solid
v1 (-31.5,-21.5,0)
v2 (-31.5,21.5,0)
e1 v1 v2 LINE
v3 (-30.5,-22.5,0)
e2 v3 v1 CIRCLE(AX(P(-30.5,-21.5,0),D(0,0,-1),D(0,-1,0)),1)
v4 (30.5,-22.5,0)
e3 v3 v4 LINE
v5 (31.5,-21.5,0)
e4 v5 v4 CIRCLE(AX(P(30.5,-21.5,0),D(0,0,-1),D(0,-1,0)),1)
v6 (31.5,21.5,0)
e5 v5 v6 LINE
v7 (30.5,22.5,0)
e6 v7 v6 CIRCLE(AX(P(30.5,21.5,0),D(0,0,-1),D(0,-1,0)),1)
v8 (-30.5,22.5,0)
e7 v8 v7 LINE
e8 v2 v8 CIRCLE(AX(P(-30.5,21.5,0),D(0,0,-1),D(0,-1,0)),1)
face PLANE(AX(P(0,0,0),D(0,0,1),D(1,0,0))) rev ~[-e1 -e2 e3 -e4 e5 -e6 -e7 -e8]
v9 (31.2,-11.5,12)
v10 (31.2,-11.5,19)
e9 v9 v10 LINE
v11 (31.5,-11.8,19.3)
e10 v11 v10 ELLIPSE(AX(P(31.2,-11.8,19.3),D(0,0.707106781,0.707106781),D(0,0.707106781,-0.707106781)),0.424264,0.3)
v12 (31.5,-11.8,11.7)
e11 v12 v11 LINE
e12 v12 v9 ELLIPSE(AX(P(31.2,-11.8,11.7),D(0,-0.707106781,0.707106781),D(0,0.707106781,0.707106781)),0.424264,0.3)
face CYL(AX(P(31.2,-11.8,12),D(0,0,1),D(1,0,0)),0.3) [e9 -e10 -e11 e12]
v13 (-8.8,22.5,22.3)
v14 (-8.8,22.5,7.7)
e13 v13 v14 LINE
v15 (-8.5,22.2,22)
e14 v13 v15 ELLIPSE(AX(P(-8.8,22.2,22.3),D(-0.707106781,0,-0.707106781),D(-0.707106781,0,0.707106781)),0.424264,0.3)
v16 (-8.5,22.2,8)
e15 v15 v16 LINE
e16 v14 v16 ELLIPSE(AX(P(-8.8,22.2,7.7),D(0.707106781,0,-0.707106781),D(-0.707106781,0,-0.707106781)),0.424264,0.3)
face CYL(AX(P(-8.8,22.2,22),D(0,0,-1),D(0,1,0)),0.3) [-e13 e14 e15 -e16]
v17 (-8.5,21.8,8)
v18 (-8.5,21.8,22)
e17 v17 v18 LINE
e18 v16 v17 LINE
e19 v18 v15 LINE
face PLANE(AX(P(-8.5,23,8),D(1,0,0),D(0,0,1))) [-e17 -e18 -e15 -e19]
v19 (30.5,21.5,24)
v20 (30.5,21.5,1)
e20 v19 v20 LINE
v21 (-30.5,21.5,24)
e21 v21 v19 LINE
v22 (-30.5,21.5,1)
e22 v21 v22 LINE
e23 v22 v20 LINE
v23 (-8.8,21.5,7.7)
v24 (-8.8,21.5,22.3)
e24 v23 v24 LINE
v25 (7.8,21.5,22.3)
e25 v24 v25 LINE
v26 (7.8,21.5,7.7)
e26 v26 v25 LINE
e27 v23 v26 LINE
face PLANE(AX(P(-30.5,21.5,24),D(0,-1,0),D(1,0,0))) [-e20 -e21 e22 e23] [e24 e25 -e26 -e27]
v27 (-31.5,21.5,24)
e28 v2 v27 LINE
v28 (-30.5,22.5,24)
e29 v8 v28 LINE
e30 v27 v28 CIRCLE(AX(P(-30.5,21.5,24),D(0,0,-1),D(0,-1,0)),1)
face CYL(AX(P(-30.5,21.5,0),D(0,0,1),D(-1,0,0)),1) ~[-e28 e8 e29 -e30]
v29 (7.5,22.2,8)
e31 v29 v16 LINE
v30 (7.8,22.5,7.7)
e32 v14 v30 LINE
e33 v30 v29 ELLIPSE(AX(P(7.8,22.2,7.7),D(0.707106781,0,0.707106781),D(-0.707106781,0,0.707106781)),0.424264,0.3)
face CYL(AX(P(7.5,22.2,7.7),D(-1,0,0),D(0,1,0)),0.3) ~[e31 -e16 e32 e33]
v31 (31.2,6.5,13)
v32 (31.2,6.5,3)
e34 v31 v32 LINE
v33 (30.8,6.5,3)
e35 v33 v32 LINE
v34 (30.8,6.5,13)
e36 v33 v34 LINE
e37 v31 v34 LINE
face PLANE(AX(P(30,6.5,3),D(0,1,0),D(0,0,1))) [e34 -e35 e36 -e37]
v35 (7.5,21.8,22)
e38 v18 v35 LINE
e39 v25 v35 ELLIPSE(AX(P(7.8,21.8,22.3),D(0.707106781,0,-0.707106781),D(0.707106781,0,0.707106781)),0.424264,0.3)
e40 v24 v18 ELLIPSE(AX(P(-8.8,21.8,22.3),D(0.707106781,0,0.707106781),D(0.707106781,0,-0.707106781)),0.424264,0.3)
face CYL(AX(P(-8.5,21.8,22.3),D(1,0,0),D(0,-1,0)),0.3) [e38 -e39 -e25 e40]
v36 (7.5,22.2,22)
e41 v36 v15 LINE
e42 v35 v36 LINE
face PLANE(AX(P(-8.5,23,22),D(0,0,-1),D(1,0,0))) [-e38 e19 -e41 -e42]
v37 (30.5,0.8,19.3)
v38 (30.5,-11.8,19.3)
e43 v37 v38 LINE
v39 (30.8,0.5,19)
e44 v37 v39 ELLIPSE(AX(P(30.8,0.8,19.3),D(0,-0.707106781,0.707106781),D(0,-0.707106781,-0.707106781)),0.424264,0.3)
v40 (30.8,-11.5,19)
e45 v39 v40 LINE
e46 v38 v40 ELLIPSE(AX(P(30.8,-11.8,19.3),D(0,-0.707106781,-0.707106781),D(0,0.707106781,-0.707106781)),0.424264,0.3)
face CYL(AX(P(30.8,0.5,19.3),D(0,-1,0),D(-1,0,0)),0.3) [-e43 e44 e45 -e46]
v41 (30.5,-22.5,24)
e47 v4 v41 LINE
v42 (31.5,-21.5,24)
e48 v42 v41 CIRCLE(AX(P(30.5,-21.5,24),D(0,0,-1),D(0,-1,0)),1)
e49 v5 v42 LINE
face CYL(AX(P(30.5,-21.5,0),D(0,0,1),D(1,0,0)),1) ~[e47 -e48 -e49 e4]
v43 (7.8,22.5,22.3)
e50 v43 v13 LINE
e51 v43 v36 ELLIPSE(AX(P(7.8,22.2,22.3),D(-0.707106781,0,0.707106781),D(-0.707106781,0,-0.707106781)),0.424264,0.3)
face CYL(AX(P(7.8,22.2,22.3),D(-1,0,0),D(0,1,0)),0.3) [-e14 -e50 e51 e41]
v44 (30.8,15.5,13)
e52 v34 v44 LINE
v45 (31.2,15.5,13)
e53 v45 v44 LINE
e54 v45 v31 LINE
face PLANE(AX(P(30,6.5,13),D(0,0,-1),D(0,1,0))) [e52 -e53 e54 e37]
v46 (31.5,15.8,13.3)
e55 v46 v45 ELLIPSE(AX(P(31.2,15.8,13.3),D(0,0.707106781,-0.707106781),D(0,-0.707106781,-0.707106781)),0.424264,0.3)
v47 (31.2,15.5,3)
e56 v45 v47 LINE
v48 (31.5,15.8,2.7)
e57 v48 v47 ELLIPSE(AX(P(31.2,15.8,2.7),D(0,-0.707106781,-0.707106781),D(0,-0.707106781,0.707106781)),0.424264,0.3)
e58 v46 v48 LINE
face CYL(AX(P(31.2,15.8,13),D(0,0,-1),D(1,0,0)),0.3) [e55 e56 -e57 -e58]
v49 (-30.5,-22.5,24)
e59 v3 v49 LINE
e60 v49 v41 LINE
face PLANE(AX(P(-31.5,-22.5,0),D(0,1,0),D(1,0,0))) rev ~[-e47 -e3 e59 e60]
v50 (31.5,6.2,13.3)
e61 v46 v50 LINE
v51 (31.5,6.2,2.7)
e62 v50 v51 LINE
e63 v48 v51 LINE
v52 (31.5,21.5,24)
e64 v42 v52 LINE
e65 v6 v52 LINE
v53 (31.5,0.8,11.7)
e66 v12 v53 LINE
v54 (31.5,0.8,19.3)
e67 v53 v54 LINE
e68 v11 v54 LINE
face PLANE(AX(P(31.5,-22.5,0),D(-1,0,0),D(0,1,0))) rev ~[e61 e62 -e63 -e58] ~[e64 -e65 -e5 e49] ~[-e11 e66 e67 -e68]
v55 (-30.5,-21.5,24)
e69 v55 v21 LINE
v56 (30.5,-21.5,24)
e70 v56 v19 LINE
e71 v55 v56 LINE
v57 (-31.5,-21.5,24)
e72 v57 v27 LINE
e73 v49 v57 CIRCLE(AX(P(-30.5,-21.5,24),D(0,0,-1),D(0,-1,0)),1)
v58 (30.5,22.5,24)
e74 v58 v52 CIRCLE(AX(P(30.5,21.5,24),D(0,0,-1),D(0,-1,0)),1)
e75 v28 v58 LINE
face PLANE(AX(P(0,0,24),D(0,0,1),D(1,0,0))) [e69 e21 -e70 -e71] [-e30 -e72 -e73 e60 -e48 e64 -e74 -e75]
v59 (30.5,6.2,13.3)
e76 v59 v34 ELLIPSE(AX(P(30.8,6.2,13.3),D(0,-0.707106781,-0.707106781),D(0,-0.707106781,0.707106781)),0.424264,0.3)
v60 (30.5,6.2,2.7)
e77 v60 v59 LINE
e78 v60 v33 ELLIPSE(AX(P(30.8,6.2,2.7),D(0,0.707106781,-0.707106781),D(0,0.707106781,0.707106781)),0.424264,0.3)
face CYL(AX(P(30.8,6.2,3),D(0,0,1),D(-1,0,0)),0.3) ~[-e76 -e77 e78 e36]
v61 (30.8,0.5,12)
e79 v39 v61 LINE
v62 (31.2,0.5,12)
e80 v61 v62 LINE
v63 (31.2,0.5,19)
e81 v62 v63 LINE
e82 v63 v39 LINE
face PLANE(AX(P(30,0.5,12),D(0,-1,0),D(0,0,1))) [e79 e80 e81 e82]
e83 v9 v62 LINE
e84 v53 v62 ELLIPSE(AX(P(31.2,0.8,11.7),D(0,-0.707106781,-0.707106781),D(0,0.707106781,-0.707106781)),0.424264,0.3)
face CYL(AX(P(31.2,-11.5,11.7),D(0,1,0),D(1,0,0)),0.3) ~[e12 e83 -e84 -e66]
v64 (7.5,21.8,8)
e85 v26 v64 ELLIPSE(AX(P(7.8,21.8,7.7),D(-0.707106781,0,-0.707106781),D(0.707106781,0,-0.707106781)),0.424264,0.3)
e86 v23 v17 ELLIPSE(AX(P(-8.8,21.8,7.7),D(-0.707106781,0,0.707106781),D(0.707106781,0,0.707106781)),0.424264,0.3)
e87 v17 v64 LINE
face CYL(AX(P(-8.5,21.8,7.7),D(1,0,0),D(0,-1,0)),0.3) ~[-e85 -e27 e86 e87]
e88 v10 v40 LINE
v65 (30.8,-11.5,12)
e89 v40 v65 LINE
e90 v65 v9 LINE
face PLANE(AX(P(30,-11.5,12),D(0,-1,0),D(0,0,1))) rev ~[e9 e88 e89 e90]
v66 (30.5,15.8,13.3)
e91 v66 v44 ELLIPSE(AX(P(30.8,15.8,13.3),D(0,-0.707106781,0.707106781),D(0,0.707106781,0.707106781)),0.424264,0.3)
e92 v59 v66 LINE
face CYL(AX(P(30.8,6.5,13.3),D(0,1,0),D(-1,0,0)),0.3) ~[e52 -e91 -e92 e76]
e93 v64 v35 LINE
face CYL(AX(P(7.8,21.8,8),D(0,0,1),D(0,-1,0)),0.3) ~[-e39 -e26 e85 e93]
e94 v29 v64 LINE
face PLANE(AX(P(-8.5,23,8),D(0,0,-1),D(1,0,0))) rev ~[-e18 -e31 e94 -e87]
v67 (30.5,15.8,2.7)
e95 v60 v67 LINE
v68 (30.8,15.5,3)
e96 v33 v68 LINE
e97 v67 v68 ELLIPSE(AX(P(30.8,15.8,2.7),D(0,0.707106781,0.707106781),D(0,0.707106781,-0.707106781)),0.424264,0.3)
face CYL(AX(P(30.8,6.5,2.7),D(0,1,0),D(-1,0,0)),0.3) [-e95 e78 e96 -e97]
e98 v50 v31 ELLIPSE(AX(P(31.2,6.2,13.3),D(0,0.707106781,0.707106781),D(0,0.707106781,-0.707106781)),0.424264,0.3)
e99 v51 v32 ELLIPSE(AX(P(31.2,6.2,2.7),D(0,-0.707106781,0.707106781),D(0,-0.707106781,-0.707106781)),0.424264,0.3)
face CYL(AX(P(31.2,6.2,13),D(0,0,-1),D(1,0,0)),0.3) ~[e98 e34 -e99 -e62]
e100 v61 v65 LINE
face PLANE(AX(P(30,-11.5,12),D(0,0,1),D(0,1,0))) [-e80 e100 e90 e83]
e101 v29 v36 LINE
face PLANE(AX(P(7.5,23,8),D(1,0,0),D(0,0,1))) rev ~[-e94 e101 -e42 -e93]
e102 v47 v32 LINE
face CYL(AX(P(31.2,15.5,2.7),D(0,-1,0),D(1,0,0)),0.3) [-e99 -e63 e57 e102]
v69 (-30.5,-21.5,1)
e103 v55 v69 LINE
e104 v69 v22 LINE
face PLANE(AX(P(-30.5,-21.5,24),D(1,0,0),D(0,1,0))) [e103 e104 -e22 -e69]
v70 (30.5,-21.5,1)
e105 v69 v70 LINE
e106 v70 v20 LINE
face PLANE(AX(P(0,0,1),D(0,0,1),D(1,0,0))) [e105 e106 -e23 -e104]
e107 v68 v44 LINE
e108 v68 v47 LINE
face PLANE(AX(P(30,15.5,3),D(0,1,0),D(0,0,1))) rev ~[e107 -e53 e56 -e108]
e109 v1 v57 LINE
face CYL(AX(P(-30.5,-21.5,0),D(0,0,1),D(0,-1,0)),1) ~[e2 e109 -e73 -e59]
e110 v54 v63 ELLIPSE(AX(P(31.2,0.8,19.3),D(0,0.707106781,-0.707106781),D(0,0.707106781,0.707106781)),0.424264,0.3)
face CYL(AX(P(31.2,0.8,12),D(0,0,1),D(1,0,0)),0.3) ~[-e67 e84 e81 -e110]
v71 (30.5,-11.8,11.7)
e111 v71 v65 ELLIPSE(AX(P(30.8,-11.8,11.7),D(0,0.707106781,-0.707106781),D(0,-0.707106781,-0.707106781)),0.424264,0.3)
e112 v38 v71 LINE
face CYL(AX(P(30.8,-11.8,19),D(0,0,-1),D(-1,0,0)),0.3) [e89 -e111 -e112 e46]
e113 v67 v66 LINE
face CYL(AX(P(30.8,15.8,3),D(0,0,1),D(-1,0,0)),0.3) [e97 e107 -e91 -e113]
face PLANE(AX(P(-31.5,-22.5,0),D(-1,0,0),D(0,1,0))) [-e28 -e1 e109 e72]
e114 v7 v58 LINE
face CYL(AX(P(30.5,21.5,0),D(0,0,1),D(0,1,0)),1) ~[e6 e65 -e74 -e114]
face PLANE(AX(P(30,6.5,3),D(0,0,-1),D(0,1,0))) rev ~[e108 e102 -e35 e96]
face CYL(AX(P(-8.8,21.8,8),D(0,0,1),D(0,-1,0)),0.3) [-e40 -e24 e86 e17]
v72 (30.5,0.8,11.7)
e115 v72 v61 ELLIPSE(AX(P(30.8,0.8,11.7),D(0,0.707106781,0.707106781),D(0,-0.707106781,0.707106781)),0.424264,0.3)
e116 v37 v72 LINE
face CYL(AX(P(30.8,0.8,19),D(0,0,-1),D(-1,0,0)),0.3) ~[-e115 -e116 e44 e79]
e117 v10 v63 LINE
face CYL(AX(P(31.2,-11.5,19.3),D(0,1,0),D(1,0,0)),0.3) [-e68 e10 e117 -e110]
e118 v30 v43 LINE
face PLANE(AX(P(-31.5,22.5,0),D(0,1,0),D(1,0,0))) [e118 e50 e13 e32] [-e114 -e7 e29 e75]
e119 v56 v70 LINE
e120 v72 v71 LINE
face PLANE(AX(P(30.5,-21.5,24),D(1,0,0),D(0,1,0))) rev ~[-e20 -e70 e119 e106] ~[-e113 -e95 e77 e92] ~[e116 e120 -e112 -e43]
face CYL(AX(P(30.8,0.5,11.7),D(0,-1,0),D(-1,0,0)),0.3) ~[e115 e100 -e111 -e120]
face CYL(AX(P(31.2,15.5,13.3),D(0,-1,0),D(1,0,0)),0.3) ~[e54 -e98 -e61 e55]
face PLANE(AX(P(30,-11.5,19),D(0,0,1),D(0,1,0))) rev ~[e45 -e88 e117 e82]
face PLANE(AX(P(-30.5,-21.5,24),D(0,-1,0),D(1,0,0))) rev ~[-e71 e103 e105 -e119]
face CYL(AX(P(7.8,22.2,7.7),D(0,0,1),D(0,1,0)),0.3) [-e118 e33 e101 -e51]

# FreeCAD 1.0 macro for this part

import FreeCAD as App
import Part
import Sketcher
from FreeCAD import Vector


def edges_at(feature, points):
    """Names of the edges that pass closest to the given points."""
    edges = feature.Shape.Edges
    near = lambda p: min(range(len(edges)), key=lambda i: edges[i].distToShape(Part.Vertex(*p))[0])
    return sorted({f"Edge{near(p) + 1}" for p in points})

doc = App.newDocument("Part")
params = doc.addObject("Spreadsheet::Sheet", "Params")
for row, (alias, value) in enumerate([
    ("sketch1_width", "63 mm"),
    ("sketch1_height", "45 mm"),
    ("pad1_length", "24 mm"),
    ("sketch2_width", "61 mm"),
    ("sketch2_height", "43 mm"),
    ("pocket1_length", "23 mm"),
    ("sketch3_width", "12 mm"),
    ("sketch3_width2", "9 mm"),
    ("sketch3_height", "7 mm"),
    ("sketch3_height2", "10 mm"),
    ("pocket2_length", "5 mm"),
    ("sketch4_width", "16 mm"),
    ("sketch4_height", "14 mm"),
    ("pocket3_length", "5 mm"),
    ("fillet_radius", "1 mm"),
    ("fillet2_radius", "1 mm"),
    ("fillet3_radius", "1 mm"),
    ("fillet4_radius", "1 mm"),
    ("fillet5_radius", "0.3 mm"),
    ("fillet6_radius", "0.3 mm"),
    ("fillet7_radius", "0.3 mm"),
    ("fillet8_radius", "0.3 mm"),
    ("fillet9_radius", "0.3 mm"),
    ("fillet10_radius", "0.3 mm"),
], start=1):
    params.set(f"A{row}", alias)
    params.set(f"B{row}", "=" + value)
    params.setAlias(f"B{row}", alias)

body = doc.addObject("PartDesign::Body", "Body")

# Sketch on XY plane
sketch1 = body.newObject("Sketcher::SketchObject", "Sketch")
sketch1.AttachmentSupport = (doc.getObject("XY_Plane"), [""])
sketch1.MapMode = "FlatFace"
sketch1.addGeometry(Part.LineSegment(Vector(-32, 22, 0), Vector(-32, -22, 0)), False)
sketch1.addGeometry(Part.LineSegment(Vector(-32, -22, 0), Vector(32, -22, 0)), False)
sketch1.addGeometry(Part.LineSegment(Vector(32, -22, 0), Vector(32, 22, 0)), False)
sketch1.addGeometry(Part.LineSegment(Vector(32, 22, 0), Vector(-32, 22, 0)), False)
sketch1.addConstraint(Sketcher.Constraint("Coincident", 0, 2, 1, 1))
sketch1.addConstraint(Sketcher.Constraint("Coincident", 1, 2, 2, 1))
sketch1.addConstraint(Sketcher.Constraint("Coincident", 2, 2, 3, 1))
sketch1.addConstraint(Sketcher.Constraint("Coincident", 3, 2, 0, 1))
sketch1.addConstraint(Sketcher.Constraint("Vertical", 0))
sketch1.addConstraint(Sketcher.Constraint("Horizontal", 1))
sketch1.addConstraint(Sketcher.Constraint("Vertical", 2))
sketch1.addConstraint(Sketcher.Constraint("Horizontal", 3))
sketch1.addConstraint(Sketcher.Constraint("Symmetric", 0, 2, 2, 2, -1, 1))
sketch1.addConstraint(Sketcher.Constraint("DistanceX", 1, 1, 1, 2, 63.0))
sketch1.addConstraint(Sketcher.Constraint("DistanceY", 0, 2, 0, 1, 45.0))
sketch1.setExpression("Constraints[9]", "Params.sketch1_width")
sketch1.setExpression("Constraints[10]", "Params.sketch1_height")
pad1 = body.newObject("PartDesign::Pad", "Pad")
pad1.Profile = sketch1
pad1.setExpression("Length", "Params.pad1_length")

# Sketch on XY plane
sketch2 = body.newObject("Sketcher::SketchObject", "Sketch001")
sketch2.AttachmentSupport = (doc.getObject("XY_Plane"), [""])
sketch2.MapMode = "FlatFace"
sketch2.AttachmentOffset = App.Placement(Vector(0, 0, 24), App.Rotation())
sketch2.addGeometry(Part.LineSegment(Vector(-30, 22, 0), Vector(-30, -22, 0)), False)
sketch2.addGeometry(Part.LineSegment(Vector(-30, -22, 0), Vector(30, -22, 0)), False)
sketch2.addGeometry(Part.LineSegment(Vector(30, -22, 0), Vector(30, 22, 0)), False)
sketch2.addGeometry(Part.LineSegment(Vector(30, 22, 0), Vector(-30, 22, 0)), False)
sketch2.addConstraint(Sketcher.Constraint("Coincident", 0, 2, 1, 1))
sketch2.addConstraint(Sketcher.Constraint("Coincident", 1, 2, 2, 1))
sketch2.addConstraint(Sketcher.Constraint("Coincident", 2, 2, 3, 1))
sketch2.addConstraint(Sketcher.Constraint("Coincident", 3, 2, 0, 1))
sketch2.addConstraint(Sketcher.Constraint("Vertical", 0))
sketch2.addConstraint(Sketcher.Constraint("Horizontal", 1))
sketch2.addConstraint(Sketcher.Constraint("Vertical", 2))
sketch2.addConstraint(Sketcher.Constraint("Horizontal", 3))
sketch2.addConstraint(Sketcher.Constraint("Symmetric", 0, 2, 2, 2, -1, 1))
sketch2.addConstraint(Sketcher.Constraint("DistanceX", 1, 1, 1, 2, 61.0))
sketch2.addConstraint(Sketcher.Constraint("DistanceY", 0, 2, 0, 1, 43.0))
sketch2.setExpression("Constraints[9]", "Params.sketch2_width")
sketch2.setExpression("Constraints[10]", "Params.sketch2_height")
pocket1 = body.newObject("PartDesign::Pocket", "Pocket")
pocket1.Profile = sketch2
pocket1.setExpression("Length", "Params.pocket1_length")

# Sketch on YZ plane
sketch3 = body.newObject("Sketcher::SketchObject", "Sketch002")
sketch3.AttachmentSupport = (doc.getObject("YZ_Plane"), [""])
sketch3.MapMode = "FlatFace"
sketch3.AttachmentOffset = App.Placement(Vector(0, 0, 30), App.Rotation())
sketch3.addGeometry(Part.LineSegment(Vector(-12, 19, 0), Vector(-12, 12, 0)), False)
sketch3.addGeometry(Part.LineSegment(Vector(-12, 12, 0), Vector(0, 12, 0)), False)
sketch3.addGeometry(Part.LineSegment(Vector(0, 12, 0), Vector(0, 19, 0)), False)
sketch3.addGeometry(Part.LineSegment(Vector(0, 19, 0), Vector(-12, 19, 0)), False)
sketch3.addGeometry(Part.LineSegment(Vector(6, 13, 0), Vector(6, 3, 0)), False)
sketch3.addGeometry(Part.LineSegment(Vector(6, 3, 0), Vector(16, 3, 0)), False)
sketch3.addGeometry(Part.LineSegment(Vector(16, 3, 0), Vector(16, 13, 0)), False)
sketch3.addGeometry(Part.LineSegment(Vector(16, 13, 0), Vector(6, 13, 0)), False)
sketch3.addConstraint(Sketcher.Constraint("Coincident", 0, 2, 1, 1))
sketch3.addConstraint(Sketcher.Constraint("Coincident", 1, 2, 2, 1))
sketch3.addConstraint(Sketcher.Constraint("Coincident", 2, 2, 3, 1))
sketch3.addConstraint(Sketcher.Constraint("Coincident", 3, 2, 0, 1))
sketch3.addConstraint(Sketcher.Constraint("Coincident", 4, 2, 5, 1))
sketch3.addConstraint(Sketcher.Constraint("Coincident", 5, 2, 6, 1))
sketch3.addConstraint(Sketcher.Constraint("Coincident", 6, 2, 7, 1))
sketch3.addConstraint(Sketcher.Constraint("Coincident", 7, 2, 4, 1))
sketch3.addConstraint(Sketcher.Constraint("Vertical", 0))
sketch3.addConstraint(Sketcher.Constraint("Horizontal", 1))
sketch3.addConstraint(Sketcher.Constraint("Vertical", 2))
sketch3.addConstraint(Sketcher.Constraint("Horizontal", 3))
sketch3.addConstraint(Sketcher.Constraint("Vertical", 4))
sketch3.addConstraint(Sketcher.Constraint("Horizontal", 5))
sketch3.addConstraint(Sketcher.Constraint("Vertical", 6))
sketch3.addConstraint(Sketcher.Constraint("Horizontal", 7))
sketch3.addConstraint(Sketcher.Constraint("DistanceX", 1, 1, 1, 2, 12.0))
sketch3.addConstraint(Sketcher.Constraint("DistanceX", 5, 1, 5, 2, 9.0))
sketch3.addConstraint(Sketcher.Constraint("DistanceY", 0, 2, 0, 1, 7.0))
sketch3.addConstraint(Sketcher.Constraint("DistanceY", 4, 2, 4, 1, 10.0))
sketch3.addConstraint(Sketcher.Constraint("DistanceY", -1, 1, 0, 2, 12.0))
sketch3.addConstraint(Sketcher.Constraint("DistanceY", -1, 1, 4, 2, 3.0))
sketch3.addConstraint(Sketcher.Constraint("DistanceX", 1, 2, 4, 2, 6.0))
sketch3.addConstraint(Sketcher.Constraint("DistanceX", 0, 2, -1, 1, 11.5))
sketch3.setExpression("Constraints[16]", "Params.sketch3_width")
sketch3.setExpression("Constraints[17]", "Params.sketch3_width2")
sketch3.setExpression("Constraints[18]", "Params.sketch3_height")
sketch3.setExpression("Constraints[19]", "Params.sketch3_height2")
pocket2 = body.newObject("PartDesign::Pocket", "Pocket001")
pocket2.Profile = sketch3
pocket2.setExpression("Length", "Params.pocket2_length")
pocket2.Midplane = True

# Sketch on XZ plane
sketch4 = body.newObject("Sketcher::SketchObject", "Sketch003")
sketch4.AttachmentSupport = (doc.getObject("XZ_Plane"), [""])
sketch4.MapMode = "FlatFace"
sketch4.AttachmentOffset = App.Placement(Vector(0, 0, -23), App.Rotation())
sketch4.addGeometry(Part.LineSegment(Vector(-8, 22, 0), Vector(-8, 8, 0)), False)
sketch4.addGeometry(Part.LineSegment(Vector(-8, 8, 0), Vector(8, 8, 0)), False)
sketch4.addGeometry(Part.LineSegment(Vector(8, 8, 0), Vector(8, 22, 0)), False)
sketch4.addGeometry(Part.LineSegment(Vector(8, 22, 0), Vector(-8, 22, 0)), False)
sketch4.addConstraint(Sketcher.Constraint("Coincident", 0, 2, 1, 1))
sketch4.addConstraint(Sketcher.Constraint("Coincident", 1, 2, 2, 1))
sketch4.addConstraint(Sketcher.Constraint("Coincident", 2, 2, 3, 1))
sketch4.addConstraint(Sketcher.Constraint("Coincident", 3, 2, 0, 1))
sketch4.addConstraint(Sketcher.Constraint("Vertical", 0))
sketch4.addConstraint(Sketcher.Constraint("Horizontal", 1))
sketch4.addConstraint(Sketcher.Constraint("Vertical", 2))
sketch4.addConstraint(Sketcher.Constraint("Horizontal", 3))
sketch4.addConstraint(Sketcher.Constraint("DistanceX", 1, 1, 1, 2, 16.0))
sketch4.addConstraint(Sketcher.Constraint("DistanceY", 0, 2, 0, 1, 14.0))
sketch4.addConstraint(Sketcher.Constraint("DistanceY", -1, 1, 0, 2, 8.0))
sketch4.addConstraint(Sketcher.Constraint("DistanceX", 0, 2, -1, 1, 8.5))
sketch4.setExpression("Constraints[8]", "Params.sketch4_width")
sketch4.setExpression("Constraints[9]", "Params.sketch4_height")
pocket3 = body.newObject("PartDesign::Pocket", "Pocket002")
pocket3.Profile = sketch4
pocket3.setExpression("Length", "Params.pocket3_length")
pocket3.Midplane = True
doc.recompute()

fillet = body.newObject("PartDesign::Fillet", "Fillet")
fillet.Base = (pocket3, edges_at(pocket3, [(31.5, 22.5, 12)]))
fillet.setExpression("Radius", "Params.fillet_radius")
doc.recompute()

fillet2 = body.newObject("PartDesign::Fillet", "Fillet001")
fillet2.Base = (fillet, edges_at(fillet, [(31.5, -22.5, 12)]))
fillet2.setExpression("Radius", "Params.fillet2_radius")
doc.recompute()

fillet3 = body.newObject("PartDesign::Fillet", "Fillet002")
fillet3.Base = (fillet2, edges_at(fillet2, [(-31.5, -22.5, 12)]))
fillet3.setExpression("Radius", "Params.fillet3_radius")
doc.recompute()

fillet4 = body.newObject("PartDesign::Fillet", "Fillet003")
fillet4.Base = (fillet3, edges_at(fillet3, [(-31.5, 22.5, 12)]))
fillet4.setExpression("Radius", "Params.fillet4_radius")
doc.recompute()

fillet5 = body.newObject("PartDesign::Fillet", "Fillet004")
fillet5.Base = (fillet4, edges_at(fillet4, [(-0.5, 22.5, 8)]))
fillet5.setExpression("Radius", "Params.fillet5_radius")
doc.recompute()

fillet6 = body.newObject("PartDesign::Fillet", "Fillet005")
fillet6.Base = (fillet5, edges_at(fillet5, [(7.5, 22.5, 14.85), (-8.5, 22.5, 14.85)]))
fillet6.setExpression("Radius", "Params.fillet6_radius")
doc.recompute()

fillet7 = body.newObject("PartDesign::Fillet", "Fillet006")
fillet7.Base = (fillet6, edges_at(fillet6, [(-0.5, 22.5, 22)]))
fillet7.setExpression("Radius", "Params.fillet7_radius")
doc.recompute()

fillet8 = body.newObject("PartDesign::Fillet", "Fillet007")
fillet8.Base = (fillet7, edges_at(fillet7, [
    (31.5, 11, 3),
    (31.5, 6.5, 8),
    (31.5, 11, 13),
    (31.5, 15.5, 8),
    (31.5, -5.5, 12),
    (31.5, 0.5, 15.5),
    (31.5, -5.5, 19),
    (31.5, -11.5, 15.5),
]))
fillet8.setExpression("Radius", "Params.fillet8_radius")
doc.recompute()

fillet9 = body.newObject("PartDesign::Fillet", "Fillet008")
fillet9.Base = (fillet8, edges_at(fillet8, [
    (-0.5, 21.5, 22),
    (-0.5, 21.5, 8),
    (-8.5, 21.5, 15),
    (7.5, 21.5, 15),
]))
fillet9.setExpression("Radius", "Params.fillet9_radius")
doc.recompute()

fillet10 = body.newObject("PartDesign::Fillet", "Fillet009")
fillet10.Base = (fillet9, edges_at(fillet9, [
    (30.5, 11, 3),
    (30.5, 6.5, 8),
    (30.5, 11, 13),
    (30.5, 15.5, 8),
    (30.5, -5.5, 12),
    (30.5, -11.5, 15.5),
    (30.5, -5.5, 19),
    (30.5, 0.5, 15.5),
]))
fillet10.setExpression("Radius", "Params.fillet10_radius")

doc.recompute()
